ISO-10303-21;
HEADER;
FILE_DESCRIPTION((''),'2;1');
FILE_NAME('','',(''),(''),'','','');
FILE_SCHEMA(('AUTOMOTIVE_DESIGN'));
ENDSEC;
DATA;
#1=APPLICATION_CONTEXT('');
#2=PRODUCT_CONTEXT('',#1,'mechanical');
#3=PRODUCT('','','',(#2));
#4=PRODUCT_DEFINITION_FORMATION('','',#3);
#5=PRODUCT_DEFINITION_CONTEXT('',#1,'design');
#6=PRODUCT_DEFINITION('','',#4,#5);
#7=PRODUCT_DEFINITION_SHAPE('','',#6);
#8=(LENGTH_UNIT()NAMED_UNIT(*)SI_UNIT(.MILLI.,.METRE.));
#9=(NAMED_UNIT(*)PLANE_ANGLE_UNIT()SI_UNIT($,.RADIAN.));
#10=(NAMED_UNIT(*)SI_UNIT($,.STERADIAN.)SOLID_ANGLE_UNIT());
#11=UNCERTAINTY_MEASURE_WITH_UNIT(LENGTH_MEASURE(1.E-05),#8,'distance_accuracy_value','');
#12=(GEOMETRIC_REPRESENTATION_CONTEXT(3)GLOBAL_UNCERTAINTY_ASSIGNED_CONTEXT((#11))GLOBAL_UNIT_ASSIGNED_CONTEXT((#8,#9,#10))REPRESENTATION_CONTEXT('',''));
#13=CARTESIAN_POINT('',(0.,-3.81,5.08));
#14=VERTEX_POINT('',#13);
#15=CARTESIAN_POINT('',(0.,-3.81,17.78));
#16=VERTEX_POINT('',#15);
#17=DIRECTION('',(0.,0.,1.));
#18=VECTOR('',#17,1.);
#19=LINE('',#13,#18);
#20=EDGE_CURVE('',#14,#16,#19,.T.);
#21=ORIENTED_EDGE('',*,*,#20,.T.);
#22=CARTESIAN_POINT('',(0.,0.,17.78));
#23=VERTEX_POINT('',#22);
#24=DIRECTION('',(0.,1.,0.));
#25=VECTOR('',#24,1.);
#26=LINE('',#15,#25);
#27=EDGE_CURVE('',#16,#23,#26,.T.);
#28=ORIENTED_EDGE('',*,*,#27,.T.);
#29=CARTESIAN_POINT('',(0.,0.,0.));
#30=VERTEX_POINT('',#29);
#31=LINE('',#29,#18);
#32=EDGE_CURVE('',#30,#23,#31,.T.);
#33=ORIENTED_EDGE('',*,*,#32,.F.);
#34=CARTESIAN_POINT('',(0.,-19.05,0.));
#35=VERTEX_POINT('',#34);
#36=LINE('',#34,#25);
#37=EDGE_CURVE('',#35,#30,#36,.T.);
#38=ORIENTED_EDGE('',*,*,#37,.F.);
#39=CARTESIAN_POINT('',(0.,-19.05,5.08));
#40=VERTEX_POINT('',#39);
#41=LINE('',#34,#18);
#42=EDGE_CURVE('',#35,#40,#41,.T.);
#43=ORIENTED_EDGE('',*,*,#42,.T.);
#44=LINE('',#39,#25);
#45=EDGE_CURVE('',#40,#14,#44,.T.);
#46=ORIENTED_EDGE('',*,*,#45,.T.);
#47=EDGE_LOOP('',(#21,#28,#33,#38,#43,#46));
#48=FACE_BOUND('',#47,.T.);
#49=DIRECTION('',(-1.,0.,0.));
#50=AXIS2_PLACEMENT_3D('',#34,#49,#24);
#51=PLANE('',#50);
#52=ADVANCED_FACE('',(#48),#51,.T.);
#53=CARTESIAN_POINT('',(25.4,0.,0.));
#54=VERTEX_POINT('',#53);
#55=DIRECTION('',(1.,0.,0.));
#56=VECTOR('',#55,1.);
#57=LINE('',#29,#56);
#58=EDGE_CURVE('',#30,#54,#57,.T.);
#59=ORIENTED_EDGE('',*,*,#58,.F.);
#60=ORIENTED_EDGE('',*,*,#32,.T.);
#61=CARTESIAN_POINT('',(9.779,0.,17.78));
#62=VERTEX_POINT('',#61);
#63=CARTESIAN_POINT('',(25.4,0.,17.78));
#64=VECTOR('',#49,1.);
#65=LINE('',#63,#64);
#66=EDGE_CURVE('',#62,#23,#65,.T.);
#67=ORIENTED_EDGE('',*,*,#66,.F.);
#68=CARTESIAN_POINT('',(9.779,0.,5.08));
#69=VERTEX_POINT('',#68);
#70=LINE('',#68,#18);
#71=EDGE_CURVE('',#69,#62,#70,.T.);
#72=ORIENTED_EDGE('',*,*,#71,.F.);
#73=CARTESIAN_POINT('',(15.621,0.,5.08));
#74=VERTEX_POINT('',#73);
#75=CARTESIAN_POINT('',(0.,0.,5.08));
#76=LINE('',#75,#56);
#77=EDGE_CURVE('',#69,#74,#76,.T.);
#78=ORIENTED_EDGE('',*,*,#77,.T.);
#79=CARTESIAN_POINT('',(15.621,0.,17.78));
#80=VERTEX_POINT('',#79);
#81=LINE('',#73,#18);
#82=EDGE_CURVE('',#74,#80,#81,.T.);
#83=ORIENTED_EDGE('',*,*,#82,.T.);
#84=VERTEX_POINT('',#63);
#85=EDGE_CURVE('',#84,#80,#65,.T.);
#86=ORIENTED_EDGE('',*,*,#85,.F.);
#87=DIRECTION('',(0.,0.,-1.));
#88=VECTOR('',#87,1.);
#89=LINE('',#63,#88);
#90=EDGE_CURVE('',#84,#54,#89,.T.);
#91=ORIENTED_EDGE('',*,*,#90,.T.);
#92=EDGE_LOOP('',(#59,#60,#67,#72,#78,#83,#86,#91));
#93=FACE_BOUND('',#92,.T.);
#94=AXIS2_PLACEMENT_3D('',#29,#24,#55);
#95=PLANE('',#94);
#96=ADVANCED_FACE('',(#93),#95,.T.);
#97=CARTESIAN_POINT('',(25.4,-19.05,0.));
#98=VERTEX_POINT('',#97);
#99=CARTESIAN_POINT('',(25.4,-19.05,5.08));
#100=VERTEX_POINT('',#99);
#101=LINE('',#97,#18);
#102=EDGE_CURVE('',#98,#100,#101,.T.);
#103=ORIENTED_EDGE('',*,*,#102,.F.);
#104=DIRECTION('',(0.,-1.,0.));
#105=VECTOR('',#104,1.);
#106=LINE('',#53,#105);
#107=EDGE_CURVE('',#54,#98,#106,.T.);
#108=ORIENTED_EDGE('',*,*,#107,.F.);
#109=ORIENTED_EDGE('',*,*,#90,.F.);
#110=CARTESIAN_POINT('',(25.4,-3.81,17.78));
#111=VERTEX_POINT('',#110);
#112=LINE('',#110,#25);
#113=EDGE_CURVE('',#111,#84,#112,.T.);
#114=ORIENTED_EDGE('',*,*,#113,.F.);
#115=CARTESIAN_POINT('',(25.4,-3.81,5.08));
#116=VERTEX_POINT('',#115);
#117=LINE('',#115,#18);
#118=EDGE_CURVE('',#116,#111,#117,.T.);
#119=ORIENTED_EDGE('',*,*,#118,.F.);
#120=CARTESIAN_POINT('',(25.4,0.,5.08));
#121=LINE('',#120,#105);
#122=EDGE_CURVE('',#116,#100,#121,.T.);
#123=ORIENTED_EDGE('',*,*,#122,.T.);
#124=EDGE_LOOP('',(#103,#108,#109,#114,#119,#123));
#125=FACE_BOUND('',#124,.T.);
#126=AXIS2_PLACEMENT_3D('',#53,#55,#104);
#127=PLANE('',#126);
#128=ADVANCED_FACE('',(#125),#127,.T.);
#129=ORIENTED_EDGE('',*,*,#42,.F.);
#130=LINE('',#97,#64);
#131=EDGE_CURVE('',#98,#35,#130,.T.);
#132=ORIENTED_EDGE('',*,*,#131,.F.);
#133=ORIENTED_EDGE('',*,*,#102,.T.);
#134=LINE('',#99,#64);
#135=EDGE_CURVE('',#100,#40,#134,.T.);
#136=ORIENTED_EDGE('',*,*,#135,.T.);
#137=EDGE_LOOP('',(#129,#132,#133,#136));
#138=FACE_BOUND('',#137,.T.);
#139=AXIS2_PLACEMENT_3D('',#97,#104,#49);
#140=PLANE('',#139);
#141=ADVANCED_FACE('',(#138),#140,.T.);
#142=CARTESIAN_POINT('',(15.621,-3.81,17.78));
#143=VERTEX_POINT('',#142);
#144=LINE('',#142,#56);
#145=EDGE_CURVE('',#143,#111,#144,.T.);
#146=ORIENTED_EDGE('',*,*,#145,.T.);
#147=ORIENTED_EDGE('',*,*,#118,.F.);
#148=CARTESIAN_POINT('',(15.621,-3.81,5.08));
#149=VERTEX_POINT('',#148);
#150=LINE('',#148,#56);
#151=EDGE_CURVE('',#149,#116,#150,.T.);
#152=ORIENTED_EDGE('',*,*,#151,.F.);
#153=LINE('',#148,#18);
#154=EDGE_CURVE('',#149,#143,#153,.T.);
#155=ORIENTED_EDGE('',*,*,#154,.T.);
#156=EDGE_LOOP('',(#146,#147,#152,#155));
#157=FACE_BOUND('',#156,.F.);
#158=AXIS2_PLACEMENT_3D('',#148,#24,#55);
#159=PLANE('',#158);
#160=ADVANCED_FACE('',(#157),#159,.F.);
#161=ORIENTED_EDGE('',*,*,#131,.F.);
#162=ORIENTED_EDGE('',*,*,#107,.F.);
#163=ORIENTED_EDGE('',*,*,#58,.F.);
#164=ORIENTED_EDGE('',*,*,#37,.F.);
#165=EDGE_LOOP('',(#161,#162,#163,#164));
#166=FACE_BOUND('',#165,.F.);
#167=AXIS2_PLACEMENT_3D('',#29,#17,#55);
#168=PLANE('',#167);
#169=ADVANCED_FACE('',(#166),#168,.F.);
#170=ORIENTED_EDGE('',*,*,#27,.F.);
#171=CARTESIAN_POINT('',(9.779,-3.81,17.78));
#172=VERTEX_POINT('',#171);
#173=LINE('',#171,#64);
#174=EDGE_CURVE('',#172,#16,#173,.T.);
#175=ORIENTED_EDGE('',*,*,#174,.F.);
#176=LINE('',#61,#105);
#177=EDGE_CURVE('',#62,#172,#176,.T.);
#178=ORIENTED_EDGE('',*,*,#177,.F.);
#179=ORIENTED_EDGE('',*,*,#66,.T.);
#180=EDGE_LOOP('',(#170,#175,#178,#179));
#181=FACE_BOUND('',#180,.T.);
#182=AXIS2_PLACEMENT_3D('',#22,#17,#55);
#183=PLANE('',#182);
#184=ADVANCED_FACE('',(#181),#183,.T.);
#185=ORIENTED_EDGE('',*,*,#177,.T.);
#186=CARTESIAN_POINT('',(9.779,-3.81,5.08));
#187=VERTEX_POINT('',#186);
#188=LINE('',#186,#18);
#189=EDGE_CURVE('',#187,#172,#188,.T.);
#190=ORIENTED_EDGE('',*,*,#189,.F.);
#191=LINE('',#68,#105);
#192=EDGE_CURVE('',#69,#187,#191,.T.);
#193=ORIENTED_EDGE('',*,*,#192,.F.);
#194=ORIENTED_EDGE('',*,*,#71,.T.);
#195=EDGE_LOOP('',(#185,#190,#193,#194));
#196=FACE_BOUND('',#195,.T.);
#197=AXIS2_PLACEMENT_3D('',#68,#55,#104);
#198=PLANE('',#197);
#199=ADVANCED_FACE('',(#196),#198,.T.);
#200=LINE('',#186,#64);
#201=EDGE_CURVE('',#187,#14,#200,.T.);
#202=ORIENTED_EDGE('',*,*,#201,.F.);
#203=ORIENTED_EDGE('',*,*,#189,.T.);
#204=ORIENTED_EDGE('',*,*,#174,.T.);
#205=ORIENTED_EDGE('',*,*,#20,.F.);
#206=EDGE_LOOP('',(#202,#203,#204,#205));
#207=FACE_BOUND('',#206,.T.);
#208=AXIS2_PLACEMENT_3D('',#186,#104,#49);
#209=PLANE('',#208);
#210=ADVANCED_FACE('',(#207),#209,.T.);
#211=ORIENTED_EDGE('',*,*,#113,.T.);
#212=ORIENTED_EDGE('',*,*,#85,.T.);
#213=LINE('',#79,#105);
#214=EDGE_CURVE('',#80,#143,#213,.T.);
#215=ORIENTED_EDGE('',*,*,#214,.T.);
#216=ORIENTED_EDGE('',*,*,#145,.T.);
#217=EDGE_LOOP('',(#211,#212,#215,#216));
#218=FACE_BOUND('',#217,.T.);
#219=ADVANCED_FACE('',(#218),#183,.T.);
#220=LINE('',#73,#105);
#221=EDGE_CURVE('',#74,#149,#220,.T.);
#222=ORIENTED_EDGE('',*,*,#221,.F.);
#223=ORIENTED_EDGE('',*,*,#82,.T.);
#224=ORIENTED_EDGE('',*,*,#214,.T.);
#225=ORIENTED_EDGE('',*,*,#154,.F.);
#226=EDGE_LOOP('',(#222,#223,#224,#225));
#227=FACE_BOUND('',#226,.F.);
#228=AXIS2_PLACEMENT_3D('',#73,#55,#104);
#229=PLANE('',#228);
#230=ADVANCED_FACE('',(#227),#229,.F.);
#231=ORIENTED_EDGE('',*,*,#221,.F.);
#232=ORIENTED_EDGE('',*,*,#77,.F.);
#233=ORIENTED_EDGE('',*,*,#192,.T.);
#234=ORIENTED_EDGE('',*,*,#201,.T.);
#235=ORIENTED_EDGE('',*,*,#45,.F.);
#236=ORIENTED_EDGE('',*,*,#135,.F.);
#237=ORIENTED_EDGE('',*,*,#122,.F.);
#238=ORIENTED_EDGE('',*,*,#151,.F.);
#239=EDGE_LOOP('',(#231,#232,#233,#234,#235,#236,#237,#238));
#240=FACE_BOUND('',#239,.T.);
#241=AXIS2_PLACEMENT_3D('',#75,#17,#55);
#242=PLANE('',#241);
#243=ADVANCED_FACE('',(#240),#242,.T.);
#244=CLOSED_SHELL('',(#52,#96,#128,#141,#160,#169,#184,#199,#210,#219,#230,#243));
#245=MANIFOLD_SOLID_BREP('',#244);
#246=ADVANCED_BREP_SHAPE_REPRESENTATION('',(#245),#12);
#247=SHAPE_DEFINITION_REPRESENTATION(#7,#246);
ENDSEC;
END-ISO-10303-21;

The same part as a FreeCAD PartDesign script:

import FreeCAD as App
import Part
import Sketcher
Q = App.Units.Quantity

doc = App.newDocument("Part")
body = doc.addObject("PartDesign::Body", "Body")

sketch1 = doc.addObject("Sketcher::SketchObject", "Sketch")
body.addObject(sketch1)
sketch1.AttachmentSupport = (doc.XY_Plane, [""])
sketch1.MapMode = "FlatFace"
sketch1.addGeometry(Part.LineSegment(App.Vector(25, 0, 0), App.Vector(0, 0, 0)), False)
sketch1.addGeometry(Part.LineSegment(App.Vector(0, 0, 0), App.Vector(0, -19, 0)), False)
sketch1.addGeometry(Part.LineSegment(App.Vector(0, -19, 0), App.Vector(25, -19, 0)), False)
sketch1.addGeometry(Part.LineSegment(App.Vector(25, -19, 0), App.Vector(25, 0, 0)), False)
sketch1.addConstraint(Sketcher.Constraint("Coincident", 0, 2, 1, 1))
sketch1.addConstraint(Sketcher.Constraint("Coincident", 1, 2, 2, 1))
sketch1.addConstraint(Sketcher.Constraint("Coincident", 2, 2, 3, 1))
sketch1.addConstraint(Sketcher.Constraint("Coincident", 3, 2, 0, 1))
sketch1.addConstraint(Sketcher.Constraint("Horizontal", 0))
sketch1.addConstraint(Sketcher.Constraint("Vertical", 1))
sketch1.addConstraint(Sketcher.Constraint("Horizontal", 2))
sketch1.addConstraint(Sketcher.Constraint("Vertical", 3))
sketch1.addConstraint(Sketcher.Constraint("Coincident", 0, 2, -1, 1))
sketch1.addConstraint(Sketcher.Constraint("DistanceX", 0, 2, 0, 1, Q("1 in")))
sketch1.addConstraint(Sketcher.Constraint("DistanceY", 1, 2, 1, 1, Q("0.75 in")))
pad1 = doc.addObject("PartDesign::Pad", "Pad")
body.addObject(pad1)
pad1.Profile = sketch1
pad1.Length = Q("0.2 in")

sketch2 = doc.addObject("Sketcher::SketchObject", "Sketch001")
body.addObject(sketch2)
sketch2.AttachmentSupport = (doc.XY_Plane, [""])
sketch2.MapMode = "FlatFace"
sketch2.AttachmentOffset = App.Placement(App.Vector(0, 0, 0.2 * 25.4), App.Rotation())
sketch2.addGeometry(Part.LineSegment(App.Vector(25.4, -3.8, 0), App.Vector(25.4, 0, 0)), False)
sketch2.addGeometry(Part.LineSegment(App.Vector(25.4, 0, 0), App.Vector(15.6, 0, 0)), False)
sketch2.addGeometry(Part.LineSegment(App.Vector(15.6, 0, 0), App.Vector(15.6, -3.8, 0)), False)
sketch2.addGeometry(Part.LineSegment(App.Vector(15.6, -3.8, 0), App.Vector(25.4, -3.8, 0)), False)
sketch2.addGeometry(Part.LineSegment(App.Vector(9.8, -3.8, 0), App.Vector(9.8, 0, 0)), False)
sketch2.addGeometry(Part.LineSegment(App.Vector(9.8, 0, 0), App.Vector(0, 0, 0)), False)
sketch2.addGeometry(Part.LineSegment(App.Vector(0, 0, 0), App.Vector(0, -3.8, 0)), False)
sketch2.addGeometry(Part.LineSegment(App.Vector(0, -3.8, 0), App.Vector(9.8, -3.8, 0)), False)
sketch2.addConstraint(Sketcher.Constraint("Coincident", 0, 2, 1, 1))
sketch2.addConstraint(Sketcher.Constraint("Coincident", 1, 2, 2, 1))
sketch2.addConstraint(Sketcher.Constraint("Coincident", 2, 2, 3, 1))
sketch2.addConstraint(Sketcher.Constraint("Coincident", 3, 2, 0, 1))
sketch2.addConstraint(Sketcher.Constraint("Coincident", 4, 2, 5, 1))
sketch2.addConstraint(Sketcher.Constraint("Coincident", 5, 2, 6, 1))
sketch2.addConstraint(Sketcher.Constraint("Coincident", 6, 2, 7, 1))
sketch2.addConstraint(Sketcher.Constraint("Coincident", 7, 2, 4, 1))
sketch2.addConstraint(Sketcher.Constraint("Vertical", 0))
sketch2.addConstraint(Sketcher.Constraint("Horizontal", 1))
sketch2.addConstraint(Sketcher.Constraint("Vertical", 2))
sketch2.addConstraint(Sketcher.Constraint("Horizontal", 3))
sketch2.addConstraint(Sketcher.Constraint("Vertical", 4))
sketch2.addConstraint(Sketcher.Constraint("Horizontal", 5))
sketch2.addConstraint(Sketcher.Constraint("Vertical", 6))
sketch2.addConstraint(Sketcher.Constraint("Horizontal", 7))
sketch2.addConstraint(Sketcher.Constraint("Coincident", 5, 2, -1, 1))
sketch2.addConstraint(Sketcher.Constraint("PointOnObject", 0, 2, -1))
sketch2.addConstraint(Sketcher.Constraint("Horizontal", 3, 2, 6, 2))
sketch2.addConstraint(Sketcher.Constraint("Equal", 3, 5))
sketch2.addConstraint(Sketcher.Constraint("DistanceY", 0, 1, 0, 2, Q("0.15 in")))
sketch2.addConstraint(Sketcher.Constraint("DistanceX", 1, 2, 1, 1, Q("0.385 in")))
sketch2.addConstraint(Sketcher.Constraint("DistanceX", -1, 1, 0, 2, Q("1 in")))
pad2 = doc.addObject("PartDesign::Pad", "Pad001")
body.addObject(pad2)
pad2.Profile = sketch2
pad2.Length = Q("0.5 in")

doc.recompute()
